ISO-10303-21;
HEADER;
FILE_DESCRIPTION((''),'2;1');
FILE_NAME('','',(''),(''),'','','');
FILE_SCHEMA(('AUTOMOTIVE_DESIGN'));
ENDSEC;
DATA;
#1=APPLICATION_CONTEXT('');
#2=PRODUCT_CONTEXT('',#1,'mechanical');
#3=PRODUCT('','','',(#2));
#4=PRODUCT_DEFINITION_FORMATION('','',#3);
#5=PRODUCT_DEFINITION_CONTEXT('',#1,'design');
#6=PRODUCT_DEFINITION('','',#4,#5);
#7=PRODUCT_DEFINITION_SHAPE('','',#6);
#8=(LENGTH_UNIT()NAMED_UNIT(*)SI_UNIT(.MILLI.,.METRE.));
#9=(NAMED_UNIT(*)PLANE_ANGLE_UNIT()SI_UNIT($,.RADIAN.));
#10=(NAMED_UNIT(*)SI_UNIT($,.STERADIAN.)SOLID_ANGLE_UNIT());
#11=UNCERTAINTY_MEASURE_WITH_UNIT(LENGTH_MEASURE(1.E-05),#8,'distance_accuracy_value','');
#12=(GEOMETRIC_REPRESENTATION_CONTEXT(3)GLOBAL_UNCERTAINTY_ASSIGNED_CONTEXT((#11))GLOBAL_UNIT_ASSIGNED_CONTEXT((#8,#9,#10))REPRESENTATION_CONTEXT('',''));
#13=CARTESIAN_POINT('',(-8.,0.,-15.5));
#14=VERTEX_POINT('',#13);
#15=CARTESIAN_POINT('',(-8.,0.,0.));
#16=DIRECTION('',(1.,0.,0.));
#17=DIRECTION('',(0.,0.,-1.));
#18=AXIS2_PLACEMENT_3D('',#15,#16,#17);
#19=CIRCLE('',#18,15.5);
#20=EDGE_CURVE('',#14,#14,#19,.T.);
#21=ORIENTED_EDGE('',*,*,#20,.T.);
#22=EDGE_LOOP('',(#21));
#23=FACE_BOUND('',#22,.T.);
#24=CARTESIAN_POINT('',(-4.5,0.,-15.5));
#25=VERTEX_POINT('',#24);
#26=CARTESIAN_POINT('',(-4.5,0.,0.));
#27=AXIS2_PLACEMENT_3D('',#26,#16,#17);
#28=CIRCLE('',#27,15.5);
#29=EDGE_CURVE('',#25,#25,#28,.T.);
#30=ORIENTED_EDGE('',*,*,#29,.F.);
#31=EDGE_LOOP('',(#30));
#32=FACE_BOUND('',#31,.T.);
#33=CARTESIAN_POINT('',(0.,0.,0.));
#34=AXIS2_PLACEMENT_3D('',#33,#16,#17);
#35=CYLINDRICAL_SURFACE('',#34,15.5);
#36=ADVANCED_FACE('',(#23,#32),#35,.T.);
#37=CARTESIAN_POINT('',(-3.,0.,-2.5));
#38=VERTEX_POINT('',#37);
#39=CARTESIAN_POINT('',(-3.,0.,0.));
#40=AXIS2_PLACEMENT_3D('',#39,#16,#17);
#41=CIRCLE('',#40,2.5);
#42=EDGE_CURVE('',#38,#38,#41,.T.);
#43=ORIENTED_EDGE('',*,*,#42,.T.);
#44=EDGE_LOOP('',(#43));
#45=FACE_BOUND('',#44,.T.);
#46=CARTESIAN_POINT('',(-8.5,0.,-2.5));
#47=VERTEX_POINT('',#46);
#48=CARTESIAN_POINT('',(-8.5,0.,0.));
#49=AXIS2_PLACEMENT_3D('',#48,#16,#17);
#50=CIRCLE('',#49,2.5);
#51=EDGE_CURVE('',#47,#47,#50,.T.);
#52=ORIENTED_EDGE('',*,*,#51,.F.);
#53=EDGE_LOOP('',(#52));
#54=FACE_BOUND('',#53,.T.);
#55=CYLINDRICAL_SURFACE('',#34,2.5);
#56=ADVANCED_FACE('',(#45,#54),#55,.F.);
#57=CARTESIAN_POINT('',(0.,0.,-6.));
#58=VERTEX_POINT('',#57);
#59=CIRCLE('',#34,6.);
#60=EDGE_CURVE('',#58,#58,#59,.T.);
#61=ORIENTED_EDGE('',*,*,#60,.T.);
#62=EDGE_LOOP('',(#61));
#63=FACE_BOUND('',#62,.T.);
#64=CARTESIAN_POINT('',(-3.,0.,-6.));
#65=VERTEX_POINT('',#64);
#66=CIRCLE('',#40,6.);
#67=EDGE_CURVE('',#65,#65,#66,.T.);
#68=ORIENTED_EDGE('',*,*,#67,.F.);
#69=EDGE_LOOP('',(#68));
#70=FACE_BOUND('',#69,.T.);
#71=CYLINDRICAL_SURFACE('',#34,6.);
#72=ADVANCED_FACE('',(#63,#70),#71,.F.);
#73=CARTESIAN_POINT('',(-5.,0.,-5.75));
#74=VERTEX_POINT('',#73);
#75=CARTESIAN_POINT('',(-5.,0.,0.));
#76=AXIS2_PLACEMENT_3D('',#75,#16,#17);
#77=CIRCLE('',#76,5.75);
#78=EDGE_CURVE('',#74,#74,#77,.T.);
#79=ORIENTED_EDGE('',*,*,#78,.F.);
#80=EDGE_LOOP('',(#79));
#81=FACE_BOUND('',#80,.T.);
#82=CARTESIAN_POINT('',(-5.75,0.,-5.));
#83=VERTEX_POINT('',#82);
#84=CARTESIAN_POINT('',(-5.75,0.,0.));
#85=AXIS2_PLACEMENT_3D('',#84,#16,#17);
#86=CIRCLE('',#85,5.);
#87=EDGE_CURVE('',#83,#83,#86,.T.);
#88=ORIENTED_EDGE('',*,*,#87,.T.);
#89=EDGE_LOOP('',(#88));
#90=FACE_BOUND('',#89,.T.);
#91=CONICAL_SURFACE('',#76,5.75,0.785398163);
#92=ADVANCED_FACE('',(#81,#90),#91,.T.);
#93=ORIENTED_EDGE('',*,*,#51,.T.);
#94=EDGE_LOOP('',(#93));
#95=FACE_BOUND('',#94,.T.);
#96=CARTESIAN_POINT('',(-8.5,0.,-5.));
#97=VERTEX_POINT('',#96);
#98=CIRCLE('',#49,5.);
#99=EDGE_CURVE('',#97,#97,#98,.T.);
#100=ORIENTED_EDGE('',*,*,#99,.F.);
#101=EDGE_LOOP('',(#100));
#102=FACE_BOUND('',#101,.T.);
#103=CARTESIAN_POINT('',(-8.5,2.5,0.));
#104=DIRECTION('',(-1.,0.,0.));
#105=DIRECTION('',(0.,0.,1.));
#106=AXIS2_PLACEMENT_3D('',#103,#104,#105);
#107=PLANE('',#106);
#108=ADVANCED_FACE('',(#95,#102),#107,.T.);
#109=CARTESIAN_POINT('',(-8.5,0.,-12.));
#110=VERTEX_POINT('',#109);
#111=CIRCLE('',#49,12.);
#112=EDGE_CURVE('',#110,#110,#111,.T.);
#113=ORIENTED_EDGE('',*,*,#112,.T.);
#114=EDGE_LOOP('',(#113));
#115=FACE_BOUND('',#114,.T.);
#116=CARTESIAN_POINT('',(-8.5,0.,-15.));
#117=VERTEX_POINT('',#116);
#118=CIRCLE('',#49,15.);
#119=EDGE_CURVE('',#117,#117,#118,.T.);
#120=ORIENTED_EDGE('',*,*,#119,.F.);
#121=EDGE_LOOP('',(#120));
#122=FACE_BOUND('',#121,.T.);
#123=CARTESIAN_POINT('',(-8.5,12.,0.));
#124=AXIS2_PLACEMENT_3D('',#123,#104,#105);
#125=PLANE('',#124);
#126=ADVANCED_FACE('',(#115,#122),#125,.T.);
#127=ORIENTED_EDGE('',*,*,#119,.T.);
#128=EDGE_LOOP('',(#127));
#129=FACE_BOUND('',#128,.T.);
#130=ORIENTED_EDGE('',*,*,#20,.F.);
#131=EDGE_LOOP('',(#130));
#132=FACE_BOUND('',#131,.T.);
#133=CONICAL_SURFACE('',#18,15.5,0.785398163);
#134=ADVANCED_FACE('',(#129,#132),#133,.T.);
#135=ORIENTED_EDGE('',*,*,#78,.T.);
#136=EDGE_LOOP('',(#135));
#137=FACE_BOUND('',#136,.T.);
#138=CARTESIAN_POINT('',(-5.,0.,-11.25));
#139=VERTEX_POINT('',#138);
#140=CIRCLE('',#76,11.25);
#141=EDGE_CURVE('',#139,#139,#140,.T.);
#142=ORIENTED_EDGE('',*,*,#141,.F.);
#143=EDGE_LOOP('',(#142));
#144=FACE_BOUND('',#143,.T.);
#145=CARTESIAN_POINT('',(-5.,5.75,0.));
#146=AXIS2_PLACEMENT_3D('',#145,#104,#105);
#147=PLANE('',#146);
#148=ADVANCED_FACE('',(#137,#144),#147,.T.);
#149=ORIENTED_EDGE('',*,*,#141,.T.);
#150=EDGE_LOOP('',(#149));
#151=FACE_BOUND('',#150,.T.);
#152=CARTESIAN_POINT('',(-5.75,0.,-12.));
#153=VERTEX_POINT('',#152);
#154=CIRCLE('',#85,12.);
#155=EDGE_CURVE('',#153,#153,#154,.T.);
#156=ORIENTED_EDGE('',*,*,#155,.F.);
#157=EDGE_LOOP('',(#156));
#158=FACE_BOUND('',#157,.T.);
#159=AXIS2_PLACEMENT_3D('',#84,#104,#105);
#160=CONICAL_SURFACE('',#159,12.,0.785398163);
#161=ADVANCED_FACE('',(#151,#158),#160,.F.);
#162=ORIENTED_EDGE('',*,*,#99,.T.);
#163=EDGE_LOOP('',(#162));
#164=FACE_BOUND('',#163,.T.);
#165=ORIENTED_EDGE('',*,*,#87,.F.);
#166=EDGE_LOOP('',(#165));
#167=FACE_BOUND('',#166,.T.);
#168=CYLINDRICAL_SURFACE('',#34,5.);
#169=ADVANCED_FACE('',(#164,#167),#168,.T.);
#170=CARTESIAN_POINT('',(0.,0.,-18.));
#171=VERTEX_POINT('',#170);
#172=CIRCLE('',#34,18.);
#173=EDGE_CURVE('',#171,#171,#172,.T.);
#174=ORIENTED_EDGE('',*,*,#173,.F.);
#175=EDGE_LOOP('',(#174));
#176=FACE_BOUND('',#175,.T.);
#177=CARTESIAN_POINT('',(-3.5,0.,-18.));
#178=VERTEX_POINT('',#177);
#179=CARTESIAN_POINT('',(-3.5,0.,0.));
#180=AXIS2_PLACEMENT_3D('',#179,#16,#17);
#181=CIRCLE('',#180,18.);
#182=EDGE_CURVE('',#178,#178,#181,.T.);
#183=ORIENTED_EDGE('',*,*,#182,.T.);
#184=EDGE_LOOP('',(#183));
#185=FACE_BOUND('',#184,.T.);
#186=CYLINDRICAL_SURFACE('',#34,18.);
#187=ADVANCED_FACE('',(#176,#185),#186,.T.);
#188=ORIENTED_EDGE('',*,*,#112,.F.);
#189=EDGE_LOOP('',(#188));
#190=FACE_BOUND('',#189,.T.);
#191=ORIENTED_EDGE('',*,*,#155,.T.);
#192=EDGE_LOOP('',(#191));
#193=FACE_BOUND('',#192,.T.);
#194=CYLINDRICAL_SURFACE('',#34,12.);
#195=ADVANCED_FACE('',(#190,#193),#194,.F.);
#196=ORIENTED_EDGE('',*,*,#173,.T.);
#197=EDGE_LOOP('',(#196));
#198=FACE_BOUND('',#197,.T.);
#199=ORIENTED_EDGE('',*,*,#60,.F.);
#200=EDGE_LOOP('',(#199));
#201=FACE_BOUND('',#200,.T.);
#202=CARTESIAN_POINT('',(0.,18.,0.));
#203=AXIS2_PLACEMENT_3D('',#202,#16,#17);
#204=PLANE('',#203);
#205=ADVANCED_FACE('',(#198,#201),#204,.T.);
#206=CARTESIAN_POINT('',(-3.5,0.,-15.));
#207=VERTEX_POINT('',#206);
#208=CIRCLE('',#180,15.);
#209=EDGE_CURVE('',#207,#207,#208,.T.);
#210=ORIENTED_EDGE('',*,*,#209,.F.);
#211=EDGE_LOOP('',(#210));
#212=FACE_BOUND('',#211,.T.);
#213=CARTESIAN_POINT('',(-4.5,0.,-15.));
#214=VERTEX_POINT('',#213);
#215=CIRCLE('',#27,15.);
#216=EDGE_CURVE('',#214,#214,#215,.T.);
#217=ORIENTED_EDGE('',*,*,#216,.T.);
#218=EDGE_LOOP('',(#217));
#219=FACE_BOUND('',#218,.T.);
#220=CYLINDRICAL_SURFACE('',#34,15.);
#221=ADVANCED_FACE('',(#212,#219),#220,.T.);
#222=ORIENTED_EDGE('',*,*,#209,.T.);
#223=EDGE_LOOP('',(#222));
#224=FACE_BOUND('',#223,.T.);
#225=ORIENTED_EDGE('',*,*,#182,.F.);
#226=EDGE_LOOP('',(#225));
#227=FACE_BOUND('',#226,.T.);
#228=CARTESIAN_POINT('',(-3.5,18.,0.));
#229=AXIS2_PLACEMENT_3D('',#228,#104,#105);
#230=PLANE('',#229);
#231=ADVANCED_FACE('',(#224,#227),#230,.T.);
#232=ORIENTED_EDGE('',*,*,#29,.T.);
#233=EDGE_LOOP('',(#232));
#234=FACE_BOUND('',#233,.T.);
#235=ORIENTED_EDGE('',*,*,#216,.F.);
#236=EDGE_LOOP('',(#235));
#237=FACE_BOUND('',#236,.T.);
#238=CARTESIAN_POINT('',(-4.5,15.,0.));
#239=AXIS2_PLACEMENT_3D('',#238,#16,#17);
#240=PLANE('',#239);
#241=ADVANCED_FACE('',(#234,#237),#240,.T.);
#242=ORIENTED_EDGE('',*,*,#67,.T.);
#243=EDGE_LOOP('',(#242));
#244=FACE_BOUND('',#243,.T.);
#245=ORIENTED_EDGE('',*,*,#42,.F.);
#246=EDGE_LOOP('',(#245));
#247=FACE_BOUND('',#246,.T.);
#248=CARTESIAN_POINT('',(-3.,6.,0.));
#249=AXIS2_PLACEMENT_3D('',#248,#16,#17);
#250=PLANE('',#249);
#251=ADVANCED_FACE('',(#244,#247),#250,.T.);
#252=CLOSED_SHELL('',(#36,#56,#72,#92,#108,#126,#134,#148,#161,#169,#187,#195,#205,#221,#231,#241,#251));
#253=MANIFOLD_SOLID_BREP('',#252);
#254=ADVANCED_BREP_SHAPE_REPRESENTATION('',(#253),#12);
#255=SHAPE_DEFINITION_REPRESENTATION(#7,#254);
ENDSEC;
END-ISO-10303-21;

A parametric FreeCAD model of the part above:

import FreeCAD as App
import Part
import Sketcher
Q = App.Units.Quantity


def add_polygon(sketch, points):
    """Adds a closed chain of lines whose ends are joined by coincident constraints."""
    first, n = sketch.GeometryCount, len(points)
    for a, b in zip(points, points[1:] + points[:1]):
        sketch.addGeometry(Part.LineSegment(App.Vector(*a, 0), App.Vector(*b, 0)), False)
    for i in range(n):
        sketch.addConstraint(Sketcher.Constraint("Coincident", first + i, 2, first + (i + 1) % n, 1))

doc = App.newDocument("Part")
body = doc.addObject("PartDesign::Body", "Body")

# Sketch on XY plane
sketch1 = body.newObject("Sketcher::SketchObject", "Sketch")
sketch1.AttachmentSupport = (doc.getObject("XY_Plane"), [""])
sketch1.MapMode = "FlatFace"
add_polygon(sketch1, [(0, 18), (-3.5, 18), (-3.5, 15), (-4.5, 15), (-4.5, 15.5), (-8, 15.5), (-8.5, 15), (-8.5, 12), (-5.8, 12), (-5, 11.2), (-5, 5.8), (-5.8, 5), (-8.5, 5), (-8.5, 2.5), (-3, 2.5), (-3, 6), (0, 6)])  # lines 0-16
sketch1.addConstraint([
    Sketcher.Constraint("Horizontal", 0),
    Sketcher.Constraint("Vertical", 1),
    Sketcher.Constraint("Horizontal", 2),
    Sketcher.Constraint("Vertical", 3),
    Sketcher.Constraint("Horizontal", 4),
    Sketcher.Constraint("Vertical", 6),
    Sketcher.Constraint("Horizontal", 7),
    Sketcher.Constraint("Vertical", 9),
    Sketcher.Constraint("Horizontal", 11),
    Sketcher.Constraint("Vertical", 12),
    Sketcher.Constraint("Horizontal", 13),
    Sketcher.Constraint("Vertical", 14),
    Sketcher.Constraint("Horizontal", 15),
    Sketcher.Constraint("Vertical", 16),
    Sketcher.Constraint("PointOnObject", 15, 2, -2),
    Sketcher.Constraint("Perpendicular", 5, 8),
    Sketcher.Constraint("Perpendicular", 8, 10),
    Sketcher.Constraint("Horizontal", 2, 2, 5, 2),
    Sketcher.Constraint("Vertical", 7, 2, 10, 2),
    Sketcher.Constraint("Vertical", 6, 2, 11, 2),
    Sketcher.Constraint("Equal", 0, 4),
    Sketcher.Constraint("Equal", 15, 1),
    Sketcher.Constraint("Equal", 1, 6),
    Sketcher.Constraint("Equal", 13, 9),
    Sketcher.Constraint("Equal", 4, 14),
    Sketcher.Constraint("Equal", 8, 10),
    Sketcher.Constraint("DistanceX", 2, 2, 2, 1, Q("1 mm")),
    Sketcher.Constraint("DistanceX", 15, 1, 15, 2, Q("3 mm")),
    Sketcher.Constraint("DistanceY", 16, 1, 16, 2, Q("12 mm")),
    Sketcher.Constraint("DistanceX", 0, 2, 0, 1, Q("3.5 mm")),
    Sketcher.Constraint("DistanceX", 13, 1, 13, 2, Q("5.5 mm")),
    Sketcher.Constraint("DistanceY", 12, 2, 12, 1, Q("2.5 mm")),
    Sketcher.Constraint("DistanceY", -1, 1, 0, 2, Q("18 mm")),
    Sketcher.Constraint("DistanceX", 8, 2, -1, 1, Q("5 mm")),
])
revolution = body.newObject("PartDesign::Revolution", "Revolution")
revolution.Profile = sketch1
revolution.ReferenceAxis = (sketch1, ["H_Axis"])
revolution.Angle = 360

doc.recompute()
